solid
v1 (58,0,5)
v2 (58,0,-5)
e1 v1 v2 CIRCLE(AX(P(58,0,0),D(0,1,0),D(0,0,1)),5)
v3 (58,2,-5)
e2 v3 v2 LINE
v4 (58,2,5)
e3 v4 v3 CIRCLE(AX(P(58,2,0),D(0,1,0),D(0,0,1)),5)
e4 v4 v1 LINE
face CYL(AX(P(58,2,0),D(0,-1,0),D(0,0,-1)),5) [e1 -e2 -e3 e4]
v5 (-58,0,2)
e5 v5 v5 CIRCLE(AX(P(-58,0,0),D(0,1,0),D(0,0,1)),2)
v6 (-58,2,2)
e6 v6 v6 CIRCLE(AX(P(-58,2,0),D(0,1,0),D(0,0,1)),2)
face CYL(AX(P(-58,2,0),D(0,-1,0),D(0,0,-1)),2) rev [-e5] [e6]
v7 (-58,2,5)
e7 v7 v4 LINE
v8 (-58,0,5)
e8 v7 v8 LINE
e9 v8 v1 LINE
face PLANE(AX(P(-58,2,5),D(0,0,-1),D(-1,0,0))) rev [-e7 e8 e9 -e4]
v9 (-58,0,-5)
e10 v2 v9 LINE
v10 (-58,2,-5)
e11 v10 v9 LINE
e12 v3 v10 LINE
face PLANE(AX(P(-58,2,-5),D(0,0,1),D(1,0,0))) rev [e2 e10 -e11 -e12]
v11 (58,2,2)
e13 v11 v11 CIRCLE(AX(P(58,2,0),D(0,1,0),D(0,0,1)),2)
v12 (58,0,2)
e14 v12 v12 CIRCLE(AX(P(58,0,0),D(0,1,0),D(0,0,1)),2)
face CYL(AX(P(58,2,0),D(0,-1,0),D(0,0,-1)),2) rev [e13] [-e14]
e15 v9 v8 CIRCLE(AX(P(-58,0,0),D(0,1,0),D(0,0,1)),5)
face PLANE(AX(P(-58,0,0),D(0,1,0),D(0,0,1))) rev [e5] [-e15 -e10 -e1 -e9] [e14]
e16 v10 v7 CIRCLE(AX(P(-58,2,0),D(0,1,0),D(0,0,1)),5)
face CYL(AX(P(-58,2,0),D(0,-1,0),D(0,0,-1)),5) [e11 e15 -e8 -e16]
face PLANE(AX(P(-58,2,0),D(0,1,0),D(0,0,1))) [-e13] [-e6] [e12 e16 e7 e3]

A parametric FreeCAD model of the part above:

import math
import FreeCAD as App
import Part
import Sketcher
from FreeCAD import Vector
Q = App.Units.Quantity

doc = App.newDocument("Part")
params = doc.addObject("Spreadsheet::Sheet", "Params")
for row, (alias, value) in enumerate([
    ("sketch1_diameter", "4 mm"),
    ("sketch1_radius", "5 mm"),
    ("sketch1_width", "116 mm"),
    ("pad1_length", "2 mm"),
], start=1):
    params.set(f"A{row}", alias)
    params.set(f"B{row}", "=" + value)
    params.setAlias(f"B{row}", alias)

body = doc.addObject("PartDesign::Body", "Body")

sketch1 = doc.addObject("Sketcher::SketchObject", "Sketch")
body.addObject(sketch1)
sketch1.AttachmentSupport = (doc.XZ_Plane, [""])
sketch1.MapMode = "FlatFace"
sketch1.addGeometry(Part.LineSegment(Vector(58, -5, 0), Vector(-58, -5, 0)), False)
sketch1.addGeometry(Part.ArcOfCircle(Part.Circle(Vector(-58, 0, 0), Vector(0, 0, 1), 5), math.radians(90), math.radians(270)), False)
sketch1.addGeometry(Part.LineSegment(Vector(-58, 5, 0), Vector(58, 5, 0)), False)
sketch1.addGeometry(Part.ArcOfCircle(Part.Circle(Vector(58, 0, 0), Vector(0, 0, 1), 5), math.radians(-90), math.radians(90)), False)
sketch1.addGeometry(Part.Circle(Vector(58, 0, 0), Vector(0, 0, 1), 2), False)
sketch1.addGeometry(Part.Circle(Vector(-58, 0, 0), Vector(0, 0, 1), 2), False)
sketch1.addConstraint(Sketcher.Constraint("Tangent", 0, 2, 1, 2))
sketch1.addConstraint(Sketcher.Constraint("Tangent", 1, 1, 2, 1))
sketch1.addConstraint(Sketcher.Constraint("Tangent", 2, 2, 3, 2))
sketch1.addConstraint(Sketcher.Constraint("Tangent", 3, 1, 0, 1))
sketch1.addConstraint(Sketcher.Constraint("Horizontal", 0))
sketch1.addConstraint(Sketcher.Constraint("Horizontal", 2))
sketch1.addConstraint(Sketcher.Constraint("Coincident", 4, 3, 3, 3))
sketch1.addConstraint(Sketcher.Constraint("Coincident", 5, 3, 1, 3))
sketch1.addConstraint(Sketcher.Constraint("Equal", 4, 5))
sketch1.addConstraint(Sketcher.Constraint("Symmetric", 1, 3, 3, 3, -1, 1))
sketch1.addConstraint(Sketcher.Constraint("Diameter", 4, Q("4 mm")))
sketch1.addConstraint(Sketcher.Constraint("Radius", 1, Q("5 mm")))
sketch1.addConstraint(Sketcher.Constraint("DistanceX", 0, 2, 0, 1, Q("116 mm")))
sketch1.setExpression("Constraints[10]", "Params.sketch1_diameter")
sketch1.setExpression("Constraints[11]", "Params.sketch1_radius")
sketch1.setExpression("Constraints[12]", "Params.sketch1_width")
pad1 = doc.addObject("PartDesign::Pad", "Pad")
body.addObject(pad1)
pad1.Profile = sketch1
pad1.setExpression("Length", "Params.pad1_length")
pad1.Reversed = True

doc.recompute()
